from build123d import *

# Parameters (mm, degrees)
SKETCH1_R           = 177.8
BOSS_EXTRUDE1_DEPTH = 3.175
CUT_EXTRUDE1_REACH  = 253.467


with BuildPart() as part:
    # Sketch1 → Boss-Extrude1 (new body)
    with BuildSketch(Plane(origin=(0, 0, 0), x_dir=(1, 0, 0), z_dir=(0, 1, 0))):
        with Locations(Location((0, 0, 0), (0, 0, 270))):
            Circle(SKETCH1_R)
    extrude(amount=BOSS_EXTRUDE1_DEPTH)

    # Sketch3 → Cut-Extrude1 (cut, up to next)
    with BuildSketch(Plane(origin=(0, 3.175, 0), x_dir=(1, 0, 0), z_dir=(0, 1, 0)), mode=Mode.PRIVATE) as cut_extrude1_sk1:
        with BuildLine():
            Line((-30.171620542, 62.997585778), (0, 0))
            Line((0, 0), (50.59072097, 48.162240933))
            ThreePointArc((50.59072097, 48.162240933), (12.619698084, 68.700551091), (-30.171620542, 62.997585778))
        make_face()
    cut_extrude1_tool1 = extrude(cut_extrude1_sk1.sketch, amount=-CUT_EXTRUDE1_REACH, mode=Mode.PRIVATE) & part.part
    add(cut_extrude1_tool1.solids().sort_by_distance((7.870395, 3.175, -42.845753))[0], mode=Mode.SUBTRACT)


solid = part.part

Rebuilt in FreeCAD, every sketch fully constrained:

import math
import FreeCAD as App
import Part
import Sketcher
from FreeCAD import Vector
Q = App.Units.Quantity

doc = App.newDocument("Part")
params = doc.addObject("Spreadsheet::Sheet", "Params")
for row, (alias, value) in enumerate([
    ("sketch1_diameter", "14 in"),
    ("pad1_length", "0.125 in"),
    ("sketch2_radius", "2.75 in"),
], start=1):
    params.set(f"A{row}", alias)
    params.set(f"B{row}", "=" + value)
    params.setAlias(f"B{row}", alias)

body = doc.addObject("PartDesign::Body", "Body")

sketch1 = body.newObject("Sketcher::SketchObject", "Sketch")
sketch1.AttachmentSupport = (doc.getObject("XZ_Plane"), [""])
sketch1.MapMode = "FlatFace"
sketch1.addGeometry(Part.Circle(Vector(0, 0, 0), Vector(0, 0, 1), 177.8), False)
sketch1.addConstraint([
    Sketcher.Constraint("Coincident", 0, 3, -1, 1),
    Sketcher.Constraint("Diameter", 0, Q("14 in")),
])
sketch1.setExpression("Constraints[1]", "Params.sketch1_diameter")
pad1 = body.newObject("PartDesign::Pad", "Pad")
pad1.Profile = sketch1
pad1.setExpression("Length", "Params.pad1_length")
pad1.Reversed = True

sketch2 = body.newObject("Sketcher::SketchObject", "Sketch001")
sketch2.AttachmentSupport = (doc.getObject("XZ_Plane"), [""])
sketch2.MapMode = "FlatFace"
sketch2.AttachmentOffset = App.Placement(Vector(0, 0, -0.125 * 25.4), App.Rotation())
sketch2.addGeometry([
    Part.LineSegment(Vector(-30.171621, -62.997586, 0), Vector(0, 0, 0)),
    Part.LineSegment(Vector(0, 0, 0), Vector(50.590721, -48.162241, 0)),
    Part.ArcOfCircle(Part.Circle(Vector(0, 0, 0), Vector(0, 0, 1), 69.85), math.radians(-115.591297), math.radians(-43.591297)),
], False)
sketch2.addConstraint([
    Sketcher.Constraint("Coincident", 0, 2, 1, 1),
    Sketcher.Constraint("Coincident", 1, 2, 2, 2),
    Sketcher.Constraint("Coincident", 2, 1, 0, 1),
    Sketcher.Constraint("Coincident", 2, 3, -1, 1),
    Sketcher.Constraint("Coincident", 0, 2, -1, 1),
    Sketcher.Constraint("Radius", 2, Q("2.75 in")),
    Sketcher.Constraint("DistanceX", -1, 1, 1, 2, Q("50.590721 mm")),
    Sketcher.Constraint("DistanceX", 2, 1, -1, 1, Q("30.171621 mm")),
])
sketch2.setExpression("Constraints[5]", "Params.sketch2_radius")
pocket1 = body.newObject("PartDesign::Pocket", "Pocket")
pocket1.Profile = sketch2
pocket1.Type = "UpToFirst"
pocket1.Reversed = True

doc.recompute()
